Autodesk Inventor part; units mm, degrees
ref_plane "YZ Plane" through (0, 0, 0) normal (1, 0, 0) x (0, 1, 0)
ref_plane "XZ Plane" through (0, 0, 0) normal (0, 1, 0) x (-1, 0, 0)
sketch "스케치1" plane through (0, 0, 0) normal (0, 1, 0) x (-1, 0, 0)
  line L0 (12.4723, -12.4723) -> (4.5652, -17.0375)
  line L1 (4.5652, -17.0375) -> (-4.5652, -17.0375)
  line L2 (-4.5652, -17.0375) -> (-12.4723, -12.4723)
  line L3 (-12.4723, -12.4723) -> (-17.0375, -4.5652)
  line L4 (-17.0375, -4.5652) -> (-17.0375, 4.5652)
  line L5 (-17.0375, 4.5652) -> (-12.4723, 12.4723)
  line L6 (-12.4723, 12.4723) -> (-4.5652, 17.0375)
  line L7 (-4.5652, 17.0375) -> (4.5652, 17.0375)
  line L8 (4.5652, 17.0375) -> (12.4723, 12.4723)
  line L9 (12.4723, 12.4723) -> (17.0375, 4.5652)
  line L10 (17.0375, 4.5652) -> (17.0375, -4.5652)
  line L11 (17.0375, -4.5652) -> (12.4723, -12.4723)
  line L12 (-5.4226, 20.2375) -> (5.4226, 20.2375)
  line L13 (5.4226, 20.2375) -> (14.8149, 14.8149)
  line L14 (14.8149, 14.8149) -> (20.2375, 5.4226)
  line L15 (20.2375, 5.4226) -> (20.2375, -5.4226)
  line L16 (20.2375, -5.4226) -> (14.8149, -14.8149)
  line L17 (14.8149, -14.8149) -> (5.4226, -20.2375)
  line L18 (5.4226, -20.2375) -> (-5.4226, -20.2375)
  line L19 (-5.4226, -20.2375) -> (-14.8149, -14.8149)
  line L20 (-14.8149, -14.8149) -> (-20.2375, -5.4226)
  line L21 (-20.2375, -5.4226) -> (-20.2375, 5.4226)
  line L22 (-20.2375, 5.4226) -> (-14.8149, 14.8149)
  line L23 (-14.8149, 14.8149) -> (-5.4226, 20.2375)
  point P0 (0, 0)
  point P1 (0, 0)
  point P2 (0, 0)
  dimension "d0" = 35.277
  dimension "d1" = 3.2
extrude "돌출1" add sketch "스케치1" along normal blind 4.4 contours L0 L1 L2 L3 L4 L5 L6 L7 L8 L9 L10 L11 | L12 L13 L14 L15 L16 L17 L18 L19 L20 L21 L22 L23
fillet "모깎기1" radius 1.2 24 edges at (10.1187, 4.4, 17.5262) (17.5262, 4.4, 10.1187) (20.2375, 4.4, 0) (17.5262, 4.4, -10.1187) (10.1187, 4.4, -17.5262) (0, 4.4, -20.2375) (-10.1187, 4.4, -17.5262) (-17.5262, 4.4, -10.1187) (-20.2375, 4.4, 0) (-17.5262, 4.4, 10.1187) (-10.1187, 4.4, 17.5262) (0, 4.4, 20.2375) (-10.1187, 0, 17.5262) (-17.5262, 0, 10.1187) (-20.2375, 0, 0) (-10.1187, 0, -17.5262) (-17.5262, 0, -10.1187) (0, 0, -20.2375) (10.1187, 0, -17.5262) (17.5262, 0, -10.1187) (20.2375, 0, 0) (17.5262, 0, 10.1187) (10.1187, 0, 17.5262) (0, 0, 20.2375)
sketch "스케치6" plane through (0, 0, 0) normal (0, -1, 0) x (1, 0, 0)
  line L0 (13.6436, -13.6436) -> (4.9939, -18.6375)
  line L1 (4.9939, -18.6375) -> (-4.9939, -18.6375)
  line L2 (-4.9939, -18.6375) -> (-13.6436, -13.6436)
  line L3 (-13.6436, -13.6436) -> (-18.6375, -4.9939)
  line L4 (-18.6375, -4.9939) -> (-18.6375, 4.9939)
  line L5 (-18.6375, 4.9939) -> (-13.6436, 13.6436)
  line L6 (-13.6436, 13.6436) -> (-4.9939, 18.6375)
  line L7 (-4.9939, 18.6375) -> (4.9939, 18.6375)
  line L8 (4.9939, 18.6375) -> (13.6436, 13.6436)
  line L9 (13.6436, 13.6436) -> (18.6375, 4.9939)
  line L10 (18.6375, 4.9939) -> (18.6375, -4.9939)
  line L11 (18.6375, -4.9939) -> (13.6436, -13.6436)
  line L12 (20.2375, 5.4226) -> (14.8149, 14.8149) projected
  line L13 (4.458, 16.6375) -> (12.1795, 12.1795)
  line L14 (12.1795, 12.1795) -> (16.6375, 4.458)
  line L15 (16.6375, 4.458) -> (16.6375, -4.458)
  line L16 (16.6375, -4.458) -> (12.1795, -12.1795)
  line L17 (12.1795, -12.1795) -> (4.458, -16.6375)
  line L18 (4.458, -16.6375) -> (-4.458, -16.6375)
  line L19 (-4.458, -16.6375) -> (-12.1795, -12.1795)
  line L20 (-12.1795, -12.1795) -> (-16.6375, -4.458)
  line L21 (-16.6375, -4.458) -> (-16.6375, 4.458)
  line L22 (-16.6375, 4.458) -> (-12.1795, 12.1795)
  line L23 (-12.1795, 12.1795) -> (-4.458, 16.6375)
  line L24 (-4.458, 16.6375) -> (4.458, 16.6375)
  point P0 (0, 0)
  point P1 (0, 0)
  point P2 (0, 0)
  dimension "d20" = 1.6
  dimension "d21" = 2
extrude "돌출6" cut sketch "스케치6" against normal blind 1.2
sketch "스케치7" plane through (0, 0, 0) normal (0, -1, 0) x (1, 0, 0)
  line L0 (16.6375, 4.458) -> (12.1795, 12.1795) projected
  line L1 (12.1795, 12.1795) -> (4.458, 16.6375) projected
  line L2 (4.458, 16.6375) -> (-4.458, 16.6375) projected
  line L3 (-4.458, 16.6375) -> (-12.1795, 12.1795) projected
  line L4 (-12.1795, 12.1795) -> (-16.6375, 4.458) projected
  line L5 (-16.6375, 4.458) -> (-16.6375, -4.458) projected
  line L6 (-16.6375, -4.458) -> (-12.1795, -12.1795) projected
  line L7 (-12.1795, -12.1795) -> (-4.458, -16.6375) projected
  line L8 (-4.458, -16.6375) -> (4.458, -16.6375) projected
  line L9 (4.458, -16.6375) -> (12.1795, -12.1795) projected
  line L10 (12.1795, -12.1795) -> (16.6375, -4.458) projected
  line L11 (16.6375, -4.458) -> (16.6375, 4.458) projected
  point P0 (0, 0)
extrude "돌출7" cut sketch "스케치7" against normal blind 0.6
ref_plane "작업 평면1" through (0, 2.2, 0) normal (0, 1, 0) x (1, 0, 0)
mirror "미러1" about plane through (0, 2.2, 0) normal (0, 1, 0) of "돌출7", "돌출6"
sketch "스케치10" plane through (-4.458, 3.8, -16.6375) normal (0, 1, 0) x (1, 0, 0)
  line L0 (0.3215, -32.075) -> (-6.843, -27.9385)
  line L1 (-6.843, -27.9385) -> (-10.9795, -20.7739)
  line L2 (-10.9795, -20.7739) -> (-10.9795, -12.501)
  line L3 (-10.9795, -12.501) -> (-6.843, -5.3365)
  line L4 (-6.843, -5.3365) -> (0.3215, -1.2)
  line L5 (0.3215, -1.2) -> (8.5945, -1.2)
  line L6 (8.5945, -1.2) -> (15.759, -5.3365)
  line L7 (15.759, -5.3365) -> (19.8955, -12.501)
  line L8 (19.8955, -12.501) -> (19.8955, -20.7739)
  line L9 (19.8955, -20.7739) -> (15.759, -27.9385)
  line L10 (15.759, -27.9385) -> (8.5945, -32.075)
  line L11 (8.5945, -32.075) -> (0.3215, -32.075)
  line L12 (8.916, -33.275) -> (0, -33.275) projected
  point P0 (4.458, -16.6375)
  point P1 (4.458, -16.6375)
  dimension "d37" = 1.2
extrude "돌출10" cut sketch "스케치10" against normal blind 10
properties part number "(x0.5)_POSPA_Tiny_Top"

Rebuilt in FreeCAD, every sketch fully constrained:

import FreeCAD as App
import Part
import Sketcher
Q = App.Units.Quantity


def edges_at(feature, points):
    """Names of the edges that pass closest to the given points."""
    edges = feature.Shape.Edges
    near = lambda p: min(range(len(edges)), key=lambda i: edges[i].distToShape(Part.Vertex(*p))[0])
    return sorted({f"Edge{near(p) + 1}" for p in points})


def add_polygon(sketch, points):
    """Adds a closed chain of lines whose ends are joined by coincident constraints."""
    first, n = sketch.GeometryCount, len(points)
    for a, b in zip(points, points[1:] + points[:1]):
        sketch.addGeometry(Part.LineSegment(App.Vector(*a, 0), App.Vector(*b, 0)), False)
    for i in range(n):
        sketch.addConstraint(Sketcher.Constraint("Coincident", first + i, 2, first + (i + 1) % n, 1))

doc = App.newDocument("Part")
body = doc.addObject("PartDesign::Body", "Body")

# Sketch on XZ plane
sketch1 = body.newObject("Sketcher::SketchObject", "Sketch")
sketch1.AttachmentSupport = (doc.getObject("XZ_Plane"), [""])
sketch1.MapMode = "FlatFace"
add_polygon(sketch1, [(-5.4226, 20.2375), (5.4226, 20.2375), (14.8149, 14.8149), (20.2375, 5.4226), (20.2375, -5.4226), (14.8149, -14.8149), (5.4226, -20.2375), (-5.4226, -20.2375), (-14.8149, -14.8149), (-20.2375, -5.4226), (-20.2375, 5.4226), (-14.8149, 14.8149)])  # lines 0-11
sketch1.addConstraint([
    Sketcher.Constraint("Horizontal", 0),
    Sketcher.Constraint("Vertical", 3),
    Sketcher.Constraint("Horizontal", 6),
    Sketcher.Constraint("Vertical", 9),
    Sketcher.Constraint("Symmetric", 0, 2, 6, 2, -1, 1),
    Sketcher.Constraint("Symmetric", 1, 2, 7, 2, -1, 1),
    Sketcher.Constraint("Symmetric", 2, 2, 8, 2, -1, 1),
    Sketcher.Constraint("Symmetric", 4, 2, 10, 2, -1, 1),
    Sketcher.Constraint("Symmetric", 4, 2, 7, 2, -2),
    Sketcher.Constraint("Perpendicular", 1, 4),
    Sketcher.Constraint("Perpendicular", 2, 5),
    Sketcher.Constraint("Perpendicular", 7, 10),
    Sketcher.Constraint("Perpendicular", 8, 11),
    Sketcher.Constraint("Horizontal", 3, 2, 8, 2),
    Sketcher.Constraint("Equal", 6, 3),
    Sketcher.Constraint("Equal", 1, 2),
    Sketcher.Constraint("Angle", 1, Q("-29.9998 deg")),
    Sketcher.Constraint("DistanceY", 3, 2, 0, 2, Q("25.66 mm")),
    Sketcher.Constraint("DistanceX", 0, 1, 0, 2, Q("10.8452 mm")),
])
pad1 = body.newObject("PartDesign::Pad", "Pad")
pad1.Profile = sketch1
pad1.Length = 4.4
pad1.Reversed = True
doc.recompute()

fillet = body.newObject("PartDesign::Fillet", "Fillet")
fillet.Base = (pad1, edges_at(pad1, [
    (10.119, 4.4, 17.526),
    (17.526, 4.4, 10.119),
    (20.238, 4.4, 0),
    (17.526, 4.4, -10.119),
    (10.119, 4.4, -17.526),
    (0, 4.4, -20.238),
    (-10.119, 4.4, -17.526),
    (-17.526, 4.4, -10.119),
    (-20.238, 4.4, 0),
    (-17.526, 4.4, 10.119),
    (-10.119, 4.4, 17.526),
    (0, 4.4, 20.238),
    (-10.119, 0, 17.526),
    (-17.526, 0, 10.119),
    (-20.238, 0, 0),
    (-10.119, 0, -17.526),
    (-17.526, 0, -10.119),
    (0, 0, -20.238),
    (10.119, 0, -17.526),
    (17.526, 0, -10.119),
    (20.238, 0, 0),
    (17.526, 0, 10.119),
    (10.119, 0, 17.526),
    (0, 0, 20.238),
]))
fillet.Radius = 1.2

# Sketch on XZ plane
sketch2 = body.newObject("Sketcher::SketchObject", "Sketch001")
sketch2.AttachmentSupport = (doc.getObject("XZ_Plane"), [""])
sketch2.MapMode = "FlatFace"
add_polygon(sketch2, [(4.9939, -18.6375), (13.6436, -13.6436), (18.6375, -4.9939), (18.6375, 4.9939), (13.6436, 13.6436), (4.9939, 18.6375), (-4.9939, 18.6375), (-13.6436, 13.6436), (-18.6375, 4.9939), (-18.6375, -4.9939), (-13.6436, -13.6436), (-4.9939, -18.6375)])  # lines 0-11
add_polygon(sketch2, [(-4.458, 16.6375), (4.458, 16.6375), (12.1795, 12.1795), (16.6375, 4.458), (16.6375, -4.458), (12.1795, -12.1795), (4.458, -16.6375), (-4.458, -16.6375), (-12.1795, -12.1795), (-16.6375, -4.458), (-16.6375, 4.458), (-12.1795, 12.1795)])  # lines 12-23
sketch2.addConstraint([
    Sketcher.Constraint("Vertical", 2),
    Sketcher.Constraint("Horizontal", 5),
    Sketcher.Constraint("Vertical", 8),
    Sketcher.Constraint("Horizontal", 11),
    Sketcher.Constraint("Horizontal", 12),
    Sketcher.Constraint("Vertical", 15),
    Sketcher.Constraint("Horizontal", 18),
    Sketcher.Constraint("Vertical", 21),
    Sketcher.Constraint("Symmetric", 0, 2, 6, 2, -1, 1),
    Sketcher.Constraint("Symmetric", 1, 2, 7, 2, -1, 1),
    Sketcher.Constraint("Symmetric", 3, 2, 9, 2, -1, 1),
    Sketcher.Constraint("Symmetric", 4, 2, 10, 2, -1, 1),
    Sketcher.Constraint("Symmetric", 12, 2, 18, 2, -1, 1),
    Sketcher.Constraint("Symmetric", 13, 2, 19, 2, -1, 1),
    Sketcher.Constraint("Symmetric", 14, 2, 20, 2, -1, 1),
    Sketcher.Constraint("Symmetric", 16, 2, 22, 2, -1, 1),
    Sketcher.Constraint("Symmetric", 3, 2, 6, 2, -2),
    Sketcher.Constraint("Symmetric", 16, 2, 19, 2, -2),
    Sketcher.Constraint("Perpendicular", 0, 3),
    Sketcher.Constraint("Perpendicular", 1, 4),
    Sketcher.Constraint("Perpendicular", 3, 6),
    Sketcher.Constraint("Perpendicular", 6, 9),
    Sketcher.Constraint("Parallel", 10, 13),
    Sketcher.Constraint("Parallel", 9, 14),
    Sketcher.Constraint("Perpendicular", 13, 16),
    Sketcher.Constraint("Perpendicular", 14, 17),
    Sketcher.Constraint("Perpendicular", 19, 22),
    Sketcher.Constraint("Perpendicular", 20, 23),
    Sketcher.Constraint("Horizontal", 2, 2, 7, 2),
    Sketcher.Constraint("Equal", 11, 2),
    Sketcher.Constraint("Equal", 18, 15),
    Sketcher.Constraint("Equal", 0, 1),
    Sketcher.Constraint("Equal", 13, 14),
    Sketcher.Constraint("DistanceY", 12, 2, 4, 2, Q("2 mm")),
    Sketcher.Constraint("Angle", 0, Q("30 deg")),
    Sketcher.Constraint("DistanceX", 12, 1, 12, 2, Q("8.916 mm")),
    Sketcher.Constraint("Distance", 13, Q("8.916 mm")),
    Sketcher.Constraint("DistanceX", 5, 2, 5, 1, Q("9.9878 mm")),
])
pocket1 = body.newObject("PartDesign::Pocket", "Pocket")
pocket1.Profile = sketch2
pocket1.Length = 1.2

# Sketch on XZ plane
sketch3 = body.newObject("Sketcher::SketchObject", "Sketch002")
sketch3.AttachmentSupport = (doc.getObject("XZ_Plane"), [""])
sketch3.MapMode = "FlatFace"
add_polygon(sketch3, [(16.6375, -4.458), (16.6375, 4.458), (12.1795, 12.1795), (4.458, 16.6375), (-4.458, 16.6375), (-12.1795, 12.1795), (-16.6375, 4.458), (-16.6375, -4.458), (-12.1795, -12.1795), (-4.458, -16.6375), (4.458, -16.6375), (12.1795, -12.1795)])  # lines 0-11
sketch3.addConstraint([
    Sketcher.Constraint("Vertical", 0),
    Sketcher.Constraint("Horizontal", 3),
    Sketcher.Constraint("Vertical", 6),
    Sketcher.Constraint("Horizontal", 9),
    Sketcher.Constraint("Symmetric", 0, 2, 6, 2, -1, 1),
    Sketcher.Constraint("Symmetric", 1, 2, 7, 2, -1, 1),
    Sketcher.Constraint("Symmetric", 2, 2, 8, 2, -1, 1),
    Sketcher.Constraint("Symmetric", 4, 2, 10, 2, -1, 1),
    Sketcher.Constraint("Symmetric", 1, 2, 4, 2, -2),
    Sketcher.Constraint("Perpendicular", 1, 4),
    Sketcher.Constraint("Perpendicular", 2, 5),
    Sketcher.Constraint("Perpendicular", 7, 10),
    Sketcher.Constraint("Perpendicular", 8, 11),
    Sketcher.Constraint("Horizontal", 0, 2, 5, 2),
    Sketcher.Constraint("Equal", 9, 0),
    Sketcher.Constraint("Equal", 1, 2),
    Sketcher.Constraint("Angle", 1, Q("120 deg")),
    Sketcher.Constraint("DistanceX", 3, 2, 3, 1, Q("8.916 mm")),
    Sketcher.Constraint("Distance", 1, Q("8.916 mm")),
])
pocket2 = body.newObject("PartDesign::Pocket", "Pocket001")
pocket2.Profile = sketch3
pocket2.Length = 0.6
doc.recompute()

datumplane = body.newObject("PartDesign::Plane", "DatumPlane")
datumplane.AttachmentSupport = (doc.getObject("XZ_Plane"), [""])
datumplane.MapMode = "FlatFace"
datumplane.AttachmentOffset = App.Placement(App.Vector(0, 0, -2.2), App.Rotation())
mirrored = body.newObject("PartDesign::Mirrored", "Mirrored")
mirrored.Originals = [pocket2, pocket1]
mirrored.MirrorPlane = (datumplane, [""])
body.Tip = mirrored

# Sketch on XZ plane
sketch4 = body.newObject("Sketcher::SketchObject", "Sketch003")
sketch4.AttachmentSupport = (doc.getObject("XZ_Plane"), [""])
sketch4.MapMode = "FlatFace"
sketch4.AttachmentOffset = App.Placement(App.Vector(0, 0, -3.8), App.Rotation())
add_polygon(sketch4, [(-11.301, 11.301), (-4.1365, 15.4375), (4.1365, 15.4375), (11.301, 11.301), (15.4375, 4.1364), (15.4375, -4.1365), (11.301, -11.301), (4.1365, -15.4375), (-4.1365, -15.4375), (-11.301, -11.301), (-15.4375, -4.1365), (-15.4375, 4.1364)])  # lines 0-11
sketch4.addConstraint([
    Sketcher.Constraint("Horizontal", 1),
    Sketcher.Constraint("Vertical", 4),
    Sketcher.Constraint("Horizontal", 7),
    Sketcher.Constraint("Vertical", 10),
    Sketcher.Constraint("Symmetric", 0, 2, 6, 2, -1, 1),
    Sketcher.Constraint("Symmetric", 2, 2, 8, 2, -1, 1),
    Sketcher.Constraint("Symmetric", 3, 2, 9, 2, -1, 1),
    Sketcher.Constraint("Symmetric", 5, 2, 11, 2, -1, 1),
    Sketcher.Constraint("Symmetric", 5, 2, 8, 2, -2),
    Sketcher.Constraint("Perpendicular", 0, 3),
    Sketcher.Constraint("Perpendicular", 2, 5),
    Sketcher.Constraint("Perpendicular", 5, 8),
    Sketcher.Constraint("Perpendicular", 8, 11),
    Sketcher.Constraint("Horizontal", 4, 2, 9, 2),
    Sketcher.Constraint("Equal", 7, 4),
    Sketcher.Constraint("Equal", 2, 3),
    Sketcher.Constraint("Angle", 0, Q("30.0004 deg")),
    Sketcher.Constraint("DistanceX", 1, 1, 1, 2, Q("8.273 mm")),
    Sketcher.Constraint("Distance", 0, Q("8.273 mm")),
])
pocket3 = body.newObject("PartDesign::Pocket", "Pocket002")
pocket3.Profile = sketch4
pocket3.Length = 10
pocket3.Reversed = True

doc.recompute()
